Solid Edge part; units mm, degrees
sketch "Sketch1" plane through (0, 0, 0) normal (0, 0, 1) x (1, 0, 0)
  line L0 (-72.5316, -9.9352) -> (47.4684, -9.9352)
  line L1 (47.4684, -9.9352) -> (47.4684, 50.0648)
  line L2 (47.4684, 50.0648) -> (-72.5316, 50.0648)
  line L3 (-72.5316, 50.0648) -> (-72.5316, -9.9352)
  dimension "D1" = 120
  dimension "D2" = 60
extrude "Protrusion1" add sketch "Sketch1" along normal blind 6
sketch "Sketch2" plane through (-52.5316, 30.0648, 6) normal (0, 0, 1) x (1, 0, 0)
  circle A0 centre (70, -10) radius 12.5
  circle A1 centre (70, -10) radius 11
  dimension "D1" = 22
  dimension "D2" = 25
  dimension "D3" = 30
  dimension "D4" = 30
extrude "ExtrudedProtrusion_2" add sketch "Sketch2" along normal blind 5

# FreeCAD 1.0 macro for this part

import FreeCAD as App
import Part
import Sketcher
from FreeCAD import Vector
Q = App.Units.Quantity

doc = App.newDocument("Part")
params = doc.addObject("Spreadsheet::Sheet", "Params")
for row, (alias, value) in enumerate([
    ("sketch1_width", "120 mm"),
    ("sketch1_height", "60 mm"),
    ("pad1_length", "6 mm"),
    ("sketch2_diameter", "25 mm"),
    ("sketch2_diameter2", "22 mm"),
    ("pad2_length", "5 mm"),
], start=1):
    params.set(f"A{row}", alias)
    params.set(f"B{row}", "=" + value)
    params.setAlias(f"B{row}", alias)

body = doc.addObject("PartDesign::Body", "Body")

# Sketch on XY plane
sketch1 = body.newObject("Sketcher::SketchObject", "Sketch")
sketch1.AttachmentSupport = (doc.getObject("XY_Plane"), [""])
sketch1.MapMode = "FlatFace"
sketch1.addGeometry([
    Part.LineSegment(Vector(-72.5316, 50.0648, 0), Vector(-72.5316, -9.9352, 0)),
    Part.LineSegment(Vector(-72.5316, -9.9352, 0), Vector(47.4684, -9.9352, 0)),
    Part.LineSegment(Vector(47.4684, -9.9352, 0), Vector(47.4684, 50.0648, 0)),
    Part.LineSegment(Vector(47.4684, 50.0648, 0), Vector(-72.5316, 50.0648, 0)),
], False)
sketch1.addConstraint([
    Sketcher.Constraint("Coincident", 0, 2, 1, 1),
    Sketcher.Constraint("Coincident", 1, 2, 2, 1),
    Sketcher.Constraint("Coincident", 2, 2, 3, 1),
    Sketcher.Constraint("Coincident", 3, 2, 0, 1),
    Sketcher.Constraint("Vertical", 0),
    Sketcher.Constraint("Horizontal", 1),
    Sketcher.Constraint("Vertical", 2),
    Sketcher.Constraint("Horizontal", 3),
    Sketcher.Constraint("DistanceX", 1, 1, 1, 2, Q("120 mm")),
    Sketcher.Constraint("DistanceY", 0, 2, 0, 1, Q("60 mm")),
    Sketcher.Constraint("DistanceX", 0, 2, -1, 1, Q("72.5316 mm")),
    Sketcher.Constraint("DistanceY", 0, 2, -1, 1, Q("9.9352 mm")),
])
sketch1.setExpression("Constraints[8]", "Params.sketch1_width")
sketch1.setExpression("Constraints[9]", "Params.sketch1_height")
pad1 = body.newObject("PartDesign::Pad", "Pad")
pad1.Profile = sketch1
pad1.setExpression("Length", "Params.pad1_length")

# Sketch on XY plane
sketch2 = body.newObject("Sketcher::SketchObject", "Sketch001")
sketch2.AttachmentSupport = (doc.getObject("XY_Plane"), [""])
sketch2.MapMode = "FlatFace"
sketch2.AttachmentOffset = App.Placement(Vector(0, 0, 6), App.Rotation())
sketch2.addGeometry([
    Part.Circle(Vector(17.4684, 20.0648, 0), Vector(0, 0, 1), 12.5),
    Part.Circle(Vector(17.4684, 20.0648, 0), Vector(0, 0, 1), 11),
], False)
sketch2.addConstraint([
    Sketcher.Constraint("Coincident", 1, 3, 0, 3),
    Sketcher.Constraint("Diameter", 0, Q("25 mm")),
    Sketcher.Constraint("Diameter", 1, Q("22 mm")),
    Sketcher.Constraint("DistanceX", -1, 1, 0, 3, Q("17.4684 mm")),
    Sketcher.Constraint("DistanceY", -1, 1, 0, 3, Q("20.0648 mm")),
])
sketch2.setExpression("Constraints[1]", "Params.sketch2_diameter")
sketch2.setExpression("Constraints[2]", "Params.sketch2_diameter2")
pad2 = body.newObject("PartDesign::Pad", "Pad001")
pad2.Profile = sketch2
pad2.setExpression("Length", "Params.pad2_length")

doc.recompute()
